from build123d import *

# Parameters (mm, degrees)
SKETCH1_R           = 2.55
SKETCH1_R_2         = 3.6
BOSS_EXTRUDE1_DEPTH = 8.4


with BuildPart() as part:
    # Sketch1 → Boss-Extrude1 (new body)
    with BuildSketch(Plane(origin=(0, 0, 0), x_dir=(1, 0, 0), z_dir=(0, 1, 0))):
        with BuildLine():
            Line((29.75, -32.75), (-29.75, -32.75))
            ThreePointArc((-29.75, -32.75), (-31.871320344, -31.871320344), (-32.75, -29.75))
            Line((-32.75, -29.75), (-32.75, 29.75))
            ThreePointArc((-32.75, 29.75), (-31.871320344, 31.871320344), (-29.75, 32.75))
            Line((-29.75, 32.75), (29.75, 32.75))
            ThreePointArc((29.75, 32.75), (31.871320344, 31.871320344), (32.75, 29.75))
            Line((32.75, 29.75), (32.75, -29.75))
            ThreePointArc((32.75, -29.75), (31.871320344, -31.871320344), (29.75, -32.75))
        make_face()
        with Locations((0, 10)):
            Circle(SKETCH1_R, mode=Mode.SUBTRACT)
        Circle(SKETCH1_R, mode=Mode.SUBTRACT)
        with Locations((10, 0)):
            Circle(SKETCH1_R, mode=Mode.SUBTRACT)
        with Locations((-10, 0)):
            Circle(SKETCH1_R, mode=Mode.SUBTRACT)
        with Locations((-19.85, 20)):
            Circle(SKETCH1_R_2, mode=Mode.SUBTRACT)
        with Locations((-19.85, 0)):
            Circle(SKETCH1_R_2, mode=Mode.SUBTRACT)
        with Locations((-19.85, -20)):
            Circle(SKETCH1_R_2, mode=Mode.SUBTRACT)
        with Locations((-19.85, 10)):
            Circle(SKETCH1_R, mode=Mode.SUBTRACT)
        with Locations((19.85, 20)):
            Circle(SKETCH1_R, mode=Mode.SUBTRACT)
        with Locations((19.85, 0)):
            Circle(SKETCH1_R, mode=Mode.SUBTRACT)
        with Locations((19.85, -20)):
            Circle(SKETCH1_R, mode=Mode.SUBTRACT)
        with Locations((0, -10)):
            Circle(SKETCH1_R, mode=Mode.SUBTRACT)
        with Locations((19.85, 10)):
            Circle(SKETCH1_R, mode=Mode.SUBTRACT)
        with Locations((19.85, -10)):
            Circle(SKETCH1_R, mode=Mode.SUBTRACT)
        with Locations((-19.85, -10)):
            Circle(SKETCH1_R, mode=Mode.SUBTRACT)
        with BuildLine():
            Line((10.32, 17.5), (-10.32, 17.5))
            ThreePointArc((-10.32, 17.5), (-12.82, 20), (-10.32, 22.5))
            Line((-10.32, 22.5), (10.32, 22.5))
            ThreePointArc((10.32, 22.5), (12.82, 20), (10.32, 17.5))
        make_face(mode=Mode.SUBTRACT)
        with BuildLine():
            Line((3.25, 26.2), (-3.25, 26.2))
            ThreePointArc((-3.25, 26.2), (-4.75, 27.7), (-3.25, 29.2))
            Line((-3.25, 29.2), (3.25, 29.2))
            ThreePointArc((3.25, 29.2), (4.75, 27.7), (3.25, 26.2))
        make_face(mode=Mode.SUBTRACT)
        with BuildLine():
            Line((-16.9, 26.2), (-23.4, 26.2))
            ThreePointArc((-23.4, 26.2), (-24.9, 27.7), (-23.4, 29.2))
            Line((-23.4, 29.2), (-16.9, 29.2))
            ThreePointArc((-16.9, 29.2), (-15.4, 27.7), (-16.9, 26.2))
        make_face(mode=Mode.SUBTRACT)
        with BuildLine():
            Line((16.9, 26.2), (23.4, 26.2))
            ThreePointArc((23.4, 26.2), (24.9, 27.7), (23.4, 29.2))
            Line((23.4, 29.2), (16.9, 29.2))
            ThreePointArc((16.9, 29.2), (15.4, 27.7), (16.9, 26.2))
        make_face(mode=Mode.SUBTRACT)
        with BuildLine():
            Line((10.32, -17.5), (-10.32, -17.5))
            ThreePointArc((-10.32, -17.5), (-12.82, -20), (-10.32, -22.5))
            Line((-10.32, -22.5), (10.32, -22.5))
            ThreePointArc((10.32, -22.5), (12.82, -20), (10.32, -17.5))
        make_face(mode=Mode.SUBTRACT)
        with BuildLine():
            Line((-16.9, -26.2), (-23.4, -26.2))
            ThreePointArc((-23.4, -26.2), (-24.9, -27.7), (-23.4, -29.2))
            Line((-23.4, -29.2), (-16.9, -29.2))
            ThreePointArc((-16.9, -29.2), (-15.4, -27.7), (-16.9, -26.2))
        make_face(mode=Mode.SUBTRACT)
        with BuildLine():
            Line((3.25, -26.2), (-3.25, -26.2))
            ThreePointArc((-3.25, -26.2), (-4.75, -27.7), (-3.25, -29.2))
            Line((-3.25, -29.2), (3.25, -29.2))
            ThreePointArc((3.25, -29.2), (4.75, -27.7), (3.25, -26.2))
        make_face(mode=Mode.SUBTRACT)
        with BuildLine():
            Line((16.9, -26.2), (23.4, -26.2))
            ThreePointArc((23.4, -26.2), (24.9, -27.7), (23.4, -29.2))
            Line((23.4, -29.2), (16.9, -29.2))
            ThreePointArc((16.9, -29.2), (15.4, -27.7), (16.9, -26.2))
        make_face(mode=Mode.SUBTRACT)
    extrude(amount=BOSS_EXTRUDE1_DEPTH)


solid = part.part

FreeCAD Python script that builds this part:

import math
import FreeCAD as App
import Part
import Sketcher

V = App.Vector

doc = App.newDocument("Part")
params = doc.addObject("Spreadsheet::Sheet", "Params")
for row, (alias, value) in enumerate([
    ("sketch1_radius", "3 mm"),
    ("sketch1_diameter", "5.1 mm"),
    ("sketch1_diameter2", "7.2 mm"),
    ("sketch1_radius2", "1.5 mm"),
    ("sketch1_radius3", "2.5 mm"),
    ("pad1_length", "8.4 mm"),
], start=1):
    params.set(f"A{row}", alias)
    params.set(f"B{row}", "=" + value)
    params.setAlias(f"B{row}", alias)

body = doc.addObject("PartDesign::Body", "Body")

# Sketch on XZ plane
sketch1 = body.newObject("Sketcher::SketchObject", "Sketch")
sketch1.AttachmentSupport = (doc.getObject("XZ_Plane"), [""])
sketch1.MapMode = "FlatFace"
sketch1.addGeometry([
    Part.LineSegment(V(-29.8, 32.8, 0), V(29.8, 32.8, 0)),  # 0
    Part.ArcOfCircle(Part.Circle(V(29.8, 29.8, 0), V(0, 0, 1), 3), math.radians(0), math.radians(90)),  # 1
    Part.LineSegment(V(32.8, 29.8, 0), V(32.8, -29.8, 0)),  # 2
    Part.ArcOfCircle(Part.Circle(V(29.8, -29.8, 0), V(0, 0, 1), 3), math.radians(-90), math.radians(0)),  # 3
    Part.LineSegment(V(29.8, -32.8, 0), V(-29.8, -32.8, 0)),  # 4
    Part.ArcOfCircle(Part.Circle(V(-29.8, -29.8, 0), V(0, 0, 1), 3), math.radians(180), math.radians(270)),  # 5
    Part.LineSegment(V(-32.8, -29.8, 0), V(-32.8, 29.8, 0)),  # 6
    Part.ArcOfCircle(Part.Circle(V(-29.8, 29.8, 0), V(0, 0, 1), 3), math.radians(90), math.radians(180)),  # 7
    Part.LineSegment(V(16.9, 26.2, 0), V(23.4, 26.2, 0)),  # 8
    Part.ArcOfCircle(Part.Circle(V(23.4, 27.7, 0), V(0, 0, 1), 1.5), math.radians(-90), math.radians(90)),  # 9
    Part.LineSegment(V(23.4, 29.2, 0), V(16.9, 29.2, 0)),  # 10
    Part.ArcOfCircle(Part.Circle(V(16.9, 27.7, 0), V(0, 0, 1), 1.5), math.radians(90), math.radians(270)),  # 11
    Part.Circle(V(19.9, 20, 0), V(0, 0, 1), 2.5),  # 12
    Part.ArcOfCircle(Part.Circle(V(3.2, 27.7, 0), V(0, 0, 1), 1.5), math.radians(-90), math.radians(90)),  # 13
    Part.LineSegment(V(3.2, 29.2, 0), V(-3.2, 29.2, 0)),  # 14
    Part.ArcOfCircle(Part.Circle(V(-3.2, 27.7, 0), V(0, 0, 1), 1.5), math.radians(90), math.radians(270)),  # 15
    Part.LineSegment(V(-3.2, 26.2, 0), V(3.2, 26.2, 0)),  # 16
    Part.ArcOfCircle(Part.Circle(V(10.3, 20, 0), V(0, 0, 1), 2.5), math.radians(-90), math.radians(90)),  # 17
    Part.LineSegment(V(10.3, 22.5, 0), V(-10.3, 22.5, 0)),  # 18
    Part.ArcOfCircle(Part.Circle(V(-10.3, 20, 0), V(0, 0, 1), 2.5), math.radians(90), math.radians(270)),  # 19
    Part.LineSegment(V(-10.3, 17.5, 0), V(10.3, 17.5, 0)),  # 20
    Part.Circle(V(19.9, 10, 0), V(0, 0, 1), 2.5),  # 21
    Part.Circle(V(19.9, 0, 0), V(0, 0, 1), 2.5),  # 22
    Part.Circle(V(0, 10, 0), V(0, 0, 1), 2.5),  # 23
    Part.Circle(V(10, 0, 0), V(0, 0, 1), 2.5),  # 24
    Part.Circle(V(0, 0, 0), V(0, 0, 1), 2.5),  # 25
    Part.ArcOfCircle(Part.Circle(V(-16.9, 27.7, 0), V(0, 0, 1), 1.5), math.radians(-90), math.radians(90)),  # 26
    Part.LineSegment(V(-16.9, 29.2, 0), V(-23.4, 29.2, 0)),  # 27
    Part.ArcOfCircle(Part.Circle(V(-23.4, 27.7, 0), V(0, 0, 1), 1.5), math.radians(90), math.radians(270)),  # 28
    Part.LineSegment(V(-23.4, 26.2, 0), V(-16.9, 26.2, 0)),  # 29
    Part.Circle(V(-19.9, 20, 0), V(0, 0, 1), 3.6),  # 30
    Part.Circle(V(-10, 0, 0), V(0, 0, 1), 2.5),  # 31
    Part.Circle(V(-19.9, 10, 0), V(0, 0, 1), 2.5),  # 32
    Part.Circle(V(-19.9, 0, 0), V(0, 0, 1), 3.6),  # 33
    Part.Circle(V(19.9, -10, 0), V(0, 0, 1), 2.5),  # 34
    Part.Circle(V(0, -10, 0), V(0, 0, 1), 2.5),  # 35
    Part.Circle(V(19.9, -20, 0), V(0, 0, 1), 2.5),  # 36
    Part.ArcOfCircle(Part.Circle(V(16.9, -27.7, 0), V(0, 0, 1), 1.5), math.radians(90), math.radians(270)),  # 37
    Part.LineSegment(V(16.9, -29.2, 0), V(23.4, -29.2, 0)),  # 38
    Part.ArcOfCircle(Part.Circle(V(23.4, -27.7, 0), V(0, 0, 1), 1.5), math.radians(-90), math.radians(90)),  # 39
    Part.LineSegment(V(23.4, -26.2, 0), V(16.9, -26.2, 0)),  # 40
    Part.LineSegment(V(10.3, -17.5, 0), V(-10.3, -17.5, 0)),  # 41
    Part.ArcOfCircle(Part.Circle(V(-10.3, -20, 0), V(0, 0, 1), 2.5), math.radians(90), math.radians(270)),  # 42
    Part.LineSegment(V(-10.3, -22.5, 0), V(10.3, -22.5, 0)),  # 43
    Part.ArcOfCircle(Part.Circle(V(10.3, -20, 0), V(0, 0, 1), 2.5), math.radians(-90), math.radians(90)),  # 44
    Part.LineSegment(V(3.2, -26.2, 0), V(-3.2, -26.2, 0)),  # 45
    Part.ArcOfCircle(Part.Circle(V(-3.2, -27.7, 0), V(0, 0, 1), 1.5), math.radians(90), math.radians(270)),  # 46
    Part.LineSegment(V(-3.2, -29.2, 0), V(3.2, -29.2, 0)),  # 47
    Part.ArcOfCircle(Part.Circle(V(3.2, -27.7, 0), V(0, 0, 1), 1.5), math.radians(-90), math.radians(90)),  # 48
    Part.Circle(V(-19.9, -10, 0), V(0, 0, 1), 2.5),  # 49
    Part.Circle(V(-19.9, -20, 0), V(0, 0, 1), 3.6),  # 50
    Part.LineSegment(V(-16.9, -26.2, 0), V(-23.4, -26.2, 0)),  # 51
    Part.ArcOfCircle(Part.Circle(V(-23.4, -27.7, 0), V(0, 0, 1), 1.5), math.radians(90), math.radians(270)),  # 52
    Part.LineSegment(V(-23.4, -29.2, 0), V(-16.9, -29.2, 0)),  # 53
    Part.ArcOfCircle(Part.Circle(V(-16.9, -27.7, 0), V(0, 0, 1), 1.5), math.radians(-90), math.radians(90)),  # 54
], False)
sketch1.addConstraint([
    Sketcher.Constraint("Tangent", 0, 2, 1, 2),
    Sketcher.Constraint("Tangent", 1, 1, 2, 1),
    Sketcher.Constraint("Tangent", 2, 2, 3, 2),
    Sketcher.Constraint("Tangent", 3, 1, 4, 1),
    Sketcher.Constraint("Tangent", 4, 2, 5, 2),
    Sketcher.Constraint("Tangent", 5, 1, 6, 1),
    Sketcher.Constraint("Tangent", 6, 2, 7, 2),
    Sketcher.Constraint("Tangent", 7, 1, 0, 1),
    Sketcher.Constraint("Tangent", 8, 2, 9, 1),
    Sketcher.Constraint("Tangent", 9, 2, 10, 1),
    Sketcher.Constraint("Tangent", 10, 2, 11, 1),
    Sketcher.Constraint("Tangent", 11, 2, 8, 1),
    Sketcher.Constraint("Tangent", 13, 2, 14, 1),
    Sketcher.Constraint("Tangent", 14, 2, 15, 1),
    Sketcher.Constraint("Tangent", 15, 2, 16, 1),
    Sketcher.Constraint("Tangent", 16, 2, 13, 1),
    Sketcher.Constraint("Tangent", 17, 2, 18, 1),
    Sketcher.Constraint("Tangent", 18, 2, 19, 1),
    Sketcher.Constraint("Tangent", 19, 2, 20, 1),
    Sketcher.Constraint("Tangent", 20, 2, 17, 1),
    Sketcher.Constraint("Tangent", 26, 2, 27, 1),
    Sketcher.Constraint("Tangent", 27, 2, 28, 1),
    Sketcher.Constraint("Tangent", 28, 2, 29, 1),
    Sketcher.Constraint("Tangent", 29, 2, 26, 1),
    Sketcher.Constraint("Tangent", 37, 2, 38, 1),
    Sketcher.Constraint("Tangent", 38, 2, 39, 1),
    Sketcher.Constraint("Tangent", 39, 2, 40, 1),
    Sketcher.Constraint("Tangent", 40, 2, 37, 1),
    Sketcher.Constraint("Tangent", 41, 2, 42, 1),
    Sketcher.Constraint("Tangent", 42, 2, 43, 1),
    Sketcher.Constraint("Tangent", 43, 2, 44, 1),
    Sketcher.Constraint("Tangent", 44, 2, 41, 1),
    Sketcher.Constraint("Tangent", 45, 2, 46, 1),
    Sketcher.Constraint("Tangent", 46, 2, 47, 1),
    Sketcher.Constraint("Tangent", 47, 2, 48, 1),
    Sketcher.Constraint("Tangent", 48, 2, 45, 1),
    Sketcher.Constraint("Tangent", 51, 2, 52, 1),
    Sketcher.Constraint("Tangent", 52, 2, 53, 1),
    Sketcher.Constraint("Tangent", 53, 2, 54, 1),
    Sketcher.Constraint("Tangent", 54, 2, 51, 1),
    Sketcher.Constraint("Horizontal", 0),
    Sketcher.Constraint("Vertical", 2),
    Sketcher.Constraint("Horizontal", 4),
    Sketcher.Constraint("Vertical", 6),
    Sketcher.Constraint("Horizontal", 8),
    Sketcher.Constraint("Horizontal", 10),
    Sketcher.Constraint("Horizontal", 14),
    Sketcher.Constraint("Horizontal", 16),
    Sketcher.Constraint("Horizontal", 18),
    Sketcher.Constraint("Horizontal", 20),
    Sketcher.Constraint("Horizontal", 27),
    Sketcher.Constraint("Horizontal", 29),
    Sketcher.Constraint("Horizontal", 38),
    Sketcher.Constraint("Horizontal", 40),
    Sketcher.Constraint("Horizontal", 41),
    Sketcher.Constraint("Horizontal", 43),
    Sketcher.Constraint("Horizontal", 45),
    Sketcher.Constraint("Horizontal", 47),
    Sketcher.Constraint("Horizontal", 51),
    Sketcher.Constraint("Horizontal", 53),
    Sketcher.Constraint("Coincident", 25, 3, -1, 1),
    Sketcher.Constraint("Equal", 1, 3),
    Sketcher.Constraint("Equal", 3, 5),
    Sketcher.Constraint("Equal", 5, 7),
    Sketcher.Constraint("Equal", 11, 13),
    Sketcher.Constraint("Equal", 12, 21),
    Sketcher.Constraint("Equal", 21, 22),
    Sketcher.Constraint("Equal", 22, 23),
    Sketcher.Constraint("Equal", 23, 24),
    Sketcher.Constraint("Equal", 24, 25),
    Sketcher.Constraint("Equal", 15, 26),
    Sketcher.Constraint("Equal", 25, 31),
    Sketcher.Constraint("Equal", 31, 32),
    Sketcher.Constraint("Equal", 30, 33),
    Sketcher.Constraint("Equal", 32, 34),
    Sketcher.Constraint("Equal", 34, 35),
    Sketcher.Constraint("Equal", 35, 36),
    Sketcher.Constraint("Equal", 28, 37),
    Sketcher.Constraint("Equal", 19, 42),
    Sketcher.Constraint("Equal", 39, 46),
    Sketcher.Constraint("Equal", 36, 49),
    Sketcher.Constraint("Equal", 33, 50),
    Sketcher.Constraint("Equal", 48, 52),
    Sketcher.Constraint("Symmetric", 1, 3, 5, 3, -1, 1),
    Sketcher.Constraint("Symmetric", 24, 3, 31, 3, -1, 1),
    Sketcher.Constraint("Symmetric", 22, 3, 33, 3, -1, 1),
    Sketcher.Constraint("Symmetric", 32, 3, 34, 3, -1, 1),
    Sketcher.Constraint("Symmetric", 23, 3, 35, 3, -1, 1),
    Sketcher.Constraint("Symmetric", 30, 3, 36, 3, -1, 1),
    Sketcher.Constraint("Symmetric", 26, 3, 37, 3, -1, 1),
    Sketcher.Constraint("Symmetric", 17, 3, 42, 3, -1, 1),
    Sketcher.Constraint("Symmetric", 13, 3, 46, 3, -1, 1),
    Sketcher.Constraint("Symmetric", 21, 3, 49, 3, -1, 1),
    Sketcher.Constraint("Symmetric", 12, 3, 50, 3, -1, 1),
    Sketcher.Constraint("Symmetric", 9, 3, 52, 3, -1, 1),
    Sketcher.Constraint("Symmetric", 11, 3, 26, 3, -2),
    Sketcher.Constraint("Symmetric", 12, 3, 30, 3, -2),
    Sketcher.Constraint("Symmetric", 21, 3, 32, 3, -2),
    Sketcher.Constraint("PointOnObject", 22, 3, -1),
    Sketcher.Constraint("PointOnObject", 23, 3, -2),
    Sketcher.Constraint("PointOnObject", 24, 3, -1),
    Sketcher.Constraint("Horizontal", 11, 3, 13, 3),
    Sketcher.Constraint("Horizontal", 12, 3, 17, 3),
    Sketcher.Constraint("Horizontal", 21, 3, 23, 3),
    Sketcher.Constraint("Vertical", 12, 3, 21, 3),
    Sketcher.Constraint("Vertical", 21, 3, 22, 3),
    Sketcher.Constraint("Vertical", 9, 3, 39, 3),
    Sketcher.Constraint("Vertical", 19, 3, 42, 3),
    Sketcher.Constraint("Vertical", 17, 3, 44, 3),
    Sketcher.Constraint("Vertical", 15, 3, 46, 3),
    Sketcher.Constraint("Vertical", 13, 3, 48, 3),
    Sketcher.Constraint("Vertical", 28, 3, 52, 3),
    Sketcher.Constraint("Vertical", 26, 3, 54, 3),
    Sketcher.Constraint("Equal", 10, 14),
    Sketcher.Constraint("Equal", 4, 2),
    Sketcher.Constraint("Radius", 1, 3.0),
    Sketcher.Constraint("Diameter", 12, 5.1),
    Sketcher.Constraint("Diameter", 30, 7.2),
    Sketcher.Constraint("Radius", 9, 1.5),
    Sketcher.Constraint("Radius", 17, 2.5),
    Sketcher.Constraint("DistanceX", 0, 1, 0, 2, 59.5),
    Sketcher.Constraint("DistanceX", 8, 1, 8, 2, 6.5),
    Sketcher.Constraint("DistanceY", -1, 1, 12, 3, 20.0),
    Sketcher.Constraint("DistanceY", -1, 1, 21, 3, 10.0),
    Sketcher.Constraint("DistanceX", -1, 1, 24, 3, 10.0),
    Sketcher.Constraint("DistanceX", 18, 2, 18, 1, 20.64),
    Sketcher.Constraint("DistanceX", -1, 1, 9, 3, 23.4),
    Sketcher.Constraint("DistanceY", -1, 1, 9, 3, 27.7),
    Sketcher.Constraint("DistanceX", -1, 1, 12, 3, 19.85),
])
sketch1.setExpression("Constraints[115]", "Params.sketch1_radius")
sketch1.setExpression("Constraints[116]", "Params.sketch1_diameter")
sketch1.setExpression("Constraints[117]", "Params.sketch1_diameter2")
sketch1.setExpression("Constraints[118]", "Params.sketch1_radius2")
sketch1.setExpression("Constraints[119]", "Params.sketch1_radius3")
pad1 = body.newObject("PartDesign::Pad", "Pad")
pad1.Profile = sketch1
pad1.setExpression("Length", "Params.pad1_length")
pad1.Reversed = True

doc.recompute()
